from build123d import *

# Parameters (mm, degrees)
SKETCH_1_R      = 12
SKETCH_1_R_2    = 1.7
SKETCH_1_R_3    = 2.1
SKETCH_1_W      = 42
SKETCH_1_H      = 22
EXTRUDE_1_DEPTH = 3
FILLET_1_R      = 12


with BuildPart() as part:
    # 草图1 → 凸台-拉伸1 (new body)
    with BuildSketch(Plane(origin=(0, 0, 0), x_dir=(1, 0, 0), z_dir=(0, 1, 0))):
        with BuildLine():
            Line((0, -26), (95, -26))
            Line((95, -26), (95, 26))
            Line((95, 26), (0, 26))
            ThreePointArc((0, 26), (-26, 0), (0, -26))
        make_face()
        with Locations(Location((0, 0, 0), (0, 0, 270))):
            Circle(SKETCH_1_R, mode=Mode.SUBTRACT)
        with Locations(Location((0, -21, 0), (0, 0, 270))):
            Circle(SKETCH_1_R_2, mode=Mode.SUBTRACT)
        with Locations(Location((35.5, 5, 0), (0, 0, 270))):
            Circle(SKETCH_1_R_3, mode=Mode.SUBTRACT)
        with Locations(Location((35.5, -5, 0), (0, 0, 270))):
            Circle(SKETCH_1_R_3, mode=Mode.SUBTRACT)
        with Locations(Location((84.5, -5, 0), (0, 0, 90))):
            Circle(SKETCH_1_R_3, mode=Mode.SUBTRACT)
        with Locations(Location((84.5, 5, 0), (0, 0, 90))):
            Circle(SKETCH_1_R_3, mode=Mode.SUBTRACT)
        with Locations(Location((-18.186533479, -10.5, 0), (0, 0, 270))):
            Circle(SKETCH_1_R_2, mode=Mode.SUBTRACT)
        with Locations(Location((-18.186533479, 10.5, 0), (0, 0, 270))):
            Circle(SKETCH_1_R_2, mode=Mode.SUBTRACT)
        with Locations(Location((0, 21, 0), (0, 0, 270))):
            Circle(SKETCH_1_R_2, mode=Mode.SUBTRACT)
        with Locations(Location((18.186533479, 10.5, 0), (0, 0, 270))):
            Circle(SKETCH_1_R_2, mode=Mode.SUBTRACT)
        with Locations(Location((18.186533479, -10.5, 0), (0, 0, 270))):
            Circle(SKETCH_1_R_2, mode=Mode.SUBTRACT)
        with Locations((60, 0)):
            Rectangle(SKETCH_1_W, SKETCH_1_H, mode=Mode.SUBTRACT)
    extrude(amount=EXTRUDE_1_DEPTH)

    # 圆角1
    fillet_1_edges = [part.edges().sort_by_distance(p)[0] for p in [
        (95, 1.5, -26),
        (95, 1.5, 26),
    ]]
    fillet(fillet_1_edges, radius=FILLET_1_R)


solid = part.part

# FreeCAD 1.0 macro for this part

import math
import FreeCAD as App
import Part
import Sketcher
from FreeCAD import Vector


def edges_at(feature, points):
    """Names of the edges that pass closest to the given points."""
    edges = feature.Shape.Edges
    near = lambda p: min(range(len(edges)), key=lambda i: edges[i].distToShape(Part.Vertex(*p))[0])
    return sorted({f"Edge{near(p) + 1}" for p in points})

doc = App.newDocument("Part")
body = doc.addObject("PartDesign::Body", "Body")

sketch1 = body.newObject("Sketcher::SketchObject", "Sketch")
sketch1.AttachmentSupport = (doc.getObject("XZ_Plane"), [""])
sketch1.MapMode = "FlatFace"
sketch1.addGeometry([
    Part.LineSegment(Vector(0, 26, 0), Vector(95, 26, 0)),
    Part.LineSegment(Vector(95, 26, 0), Vector(95, -26, 0)),
    Part.LineSegment(Vector(95, -26, 0), Vector(0, -26, 0)),
    Part.ArcOfCircle(Part.Circle(Vector(0, 0, 0), Vector(0, 0, 1), 26), math.radians(90), math.radians(270)),
    Part.Circle(Vector(0, 21, 0), Vector(0, 0, 1), 1.7),
    Part.Circle(Vector(-18.2, 10.5, 0), Vector(0, 0, 1), 1.7),
    Part.Circle(Vector(18.2, 10.5, 0), Vector(0, 0, 1), 1.7),
    Part.Circle(Vector(35.5, 5, 0), Vector(0, 0, 1), 2.1),
    Part.Circle(Vector(84.5, 5, 0), Vector(0, 0, 1), 2.1),
    Part.Circle(Vector(0, 0, 0), Vector(0, 0, 1), 12),
    Part.Circle(Vector(-18.2, -10.5, 0), Vector(0, 0, 1), 1.7),
    Part.Circle(Vector(18.2, -10.5, 0), Vector(0, 0, 1), 1.7),
    Part.Circle(Vector(0, -21, 0), Vector(0, 0, 1), 1.7),
    Part.Circle(Vector(35.5, -5, 0), Vector(0, 0, 1), 2.1),
    Part.LineSegment(Vector(81, 11, 0), Vector(39, 11, 0)),
    Part.LineSegment(Vector(39, 11, 0), Vector(39, -11, 0)),
    Part.LineSegment(Vector(39, -11, 0), Vector(81, -11, 0)),
    Part.LineSegment(Vector(81, -11, 0), Vector(81, 11, 0)),
    Part.Circle(Vector(84.5, -5, 0), Vector(0, 0, 1), 2.1),
], False)
sketch1.addConstraint([
    Sketcher.Constraint("Coincident", 0, 2, 1, 1),
    Sketcher.Constraint("Coincident", 1, 2, 2, 1),
    Sketcher.Constraint("Tangent", 2, 2, 3, 2),
    Sketcher.Constraint("Tangent", 3, 1, 0, 1),
    Sketcher.Constraint("Coincident", 14, 2, 15, 1),
    Sketcher.Constraint("Coincident", 15, 2, 16, 1),
    Sketcher.Constraint("Coincident", 16, 2, 17, 1),
    Sketcher.Constraint("Coincident", 17, 2, 14, 1),
    Sketcher.Constraint("Horizontal", 0),
    Sketcher.Constraint("Vertical", 1),
    Sketcher.Constraint("Horizontal", 2),
    Sketcher.Constraint("Horizontal", 14),
    Sketcher.Constraint("Vertical", 15),
    Sketcher.Constraint("Horizontal", 16),
    Sketcher.Constraint("Vertical", 17),
    Sketcher.Constraint("Coincident", 3, 3, -1, 1),
    Sketcher.Constraint("Coincident", 9, 3, -1, 1),
    Sketcher.Constraint("Equal", 4, 5),
    Sketcher.Constraint("Equal", 5, 6),
    Sketcher.Constraint("Equal", 7, 8),
    Sketcher.Constraint("Equal", 6, 10),
    Sketcher.Constraint("Equal", 10, 11),
    Sketcher.Constraint("Equal", 11, 12),
    Sketcher.Constraint("Equal", 8, 13),
    Sketcher.Constraint("Equal", 13, 18),
    Sketcher.Constraint("Symmetric", 6, 3, 10, 3, -1, 1),
    Sketcher.Constraint("Symmetric", 5, 3, 11, 3, -1, 1),
    Sketcher.Constraint("Symmetric", 4, 3, 12, 3, -1, 1),
    Sketcher.Constraint("Symmetric", 5, 3, 6, 3, -2),
    Sketcher.Constraint("Symmetric", 7, 3, 13, 3, -1),
    Sketcher.Constraint("Symmetric", 8, 3, 18, 3, -1),
    Sketcher.Constraint("PointOnObject", 4, 3, -2),
    Sketcher.Constraint("Horizontal", 7, 3, 8, 3),
    Sketcher.Constraint("Diameter", 9, 24.0),
    Sketcher.Constraint("Radius", 3, 26.0),
    Sketcher.Constraint("Diameter", 4, 3.4),
    Sketcher.Constraint("Diameter", 7, 4.2),
    Sketcher.Constraint("DistanceX", 0, 1, 0, 2, 95.0),
    Sketcher.Constraint("DistanceX", 14, 2, 14, 1, 42.0),
    Sketcher.Constraint("DistanceY", 15, 2, 15, 1, 22.0),
    Sketcher.Constraint("DistanceY", -1, 1, 4, 3, 21.0),
    Sketcher.Constraint("DistanceY", -1, 1, 7, 3, 5.0),
    Sketcher.Constraint("DistanceX", -1, 1, 14, 2, 39.0),
    Sketcher.Constraint("DistanceY", -1, 1, 14, 2, 11.0),
    Sketcher.Constraint("DistanceX", 7, 3, 8, 3, 49.0),
    Sketcher.Constraint("DistanceY", 10, 3, 5, 3, 21.0),
    Sketcher.Constraint("DistanceX", -1, 1, 7, 3, 35.5),
    Sketcher.Constraint("DistanceX", 5, 3, -1, 1, 18.186533),
])
pad1 = body.newObject("PartDesign::Pad", "Pad")
pad1.Profile = sketch1
pad1.Length = 3
pad1.Reversed = True
doc.recompute()

fillet = body.newObject("PartDesign::Fillet", "Fillet")
fillet.Base = (pad1, edges_at(pad1, [(95, 1.5, -26), (95, 1.5, 26)]))
fillet.Radius = 12

doc.recompute()
